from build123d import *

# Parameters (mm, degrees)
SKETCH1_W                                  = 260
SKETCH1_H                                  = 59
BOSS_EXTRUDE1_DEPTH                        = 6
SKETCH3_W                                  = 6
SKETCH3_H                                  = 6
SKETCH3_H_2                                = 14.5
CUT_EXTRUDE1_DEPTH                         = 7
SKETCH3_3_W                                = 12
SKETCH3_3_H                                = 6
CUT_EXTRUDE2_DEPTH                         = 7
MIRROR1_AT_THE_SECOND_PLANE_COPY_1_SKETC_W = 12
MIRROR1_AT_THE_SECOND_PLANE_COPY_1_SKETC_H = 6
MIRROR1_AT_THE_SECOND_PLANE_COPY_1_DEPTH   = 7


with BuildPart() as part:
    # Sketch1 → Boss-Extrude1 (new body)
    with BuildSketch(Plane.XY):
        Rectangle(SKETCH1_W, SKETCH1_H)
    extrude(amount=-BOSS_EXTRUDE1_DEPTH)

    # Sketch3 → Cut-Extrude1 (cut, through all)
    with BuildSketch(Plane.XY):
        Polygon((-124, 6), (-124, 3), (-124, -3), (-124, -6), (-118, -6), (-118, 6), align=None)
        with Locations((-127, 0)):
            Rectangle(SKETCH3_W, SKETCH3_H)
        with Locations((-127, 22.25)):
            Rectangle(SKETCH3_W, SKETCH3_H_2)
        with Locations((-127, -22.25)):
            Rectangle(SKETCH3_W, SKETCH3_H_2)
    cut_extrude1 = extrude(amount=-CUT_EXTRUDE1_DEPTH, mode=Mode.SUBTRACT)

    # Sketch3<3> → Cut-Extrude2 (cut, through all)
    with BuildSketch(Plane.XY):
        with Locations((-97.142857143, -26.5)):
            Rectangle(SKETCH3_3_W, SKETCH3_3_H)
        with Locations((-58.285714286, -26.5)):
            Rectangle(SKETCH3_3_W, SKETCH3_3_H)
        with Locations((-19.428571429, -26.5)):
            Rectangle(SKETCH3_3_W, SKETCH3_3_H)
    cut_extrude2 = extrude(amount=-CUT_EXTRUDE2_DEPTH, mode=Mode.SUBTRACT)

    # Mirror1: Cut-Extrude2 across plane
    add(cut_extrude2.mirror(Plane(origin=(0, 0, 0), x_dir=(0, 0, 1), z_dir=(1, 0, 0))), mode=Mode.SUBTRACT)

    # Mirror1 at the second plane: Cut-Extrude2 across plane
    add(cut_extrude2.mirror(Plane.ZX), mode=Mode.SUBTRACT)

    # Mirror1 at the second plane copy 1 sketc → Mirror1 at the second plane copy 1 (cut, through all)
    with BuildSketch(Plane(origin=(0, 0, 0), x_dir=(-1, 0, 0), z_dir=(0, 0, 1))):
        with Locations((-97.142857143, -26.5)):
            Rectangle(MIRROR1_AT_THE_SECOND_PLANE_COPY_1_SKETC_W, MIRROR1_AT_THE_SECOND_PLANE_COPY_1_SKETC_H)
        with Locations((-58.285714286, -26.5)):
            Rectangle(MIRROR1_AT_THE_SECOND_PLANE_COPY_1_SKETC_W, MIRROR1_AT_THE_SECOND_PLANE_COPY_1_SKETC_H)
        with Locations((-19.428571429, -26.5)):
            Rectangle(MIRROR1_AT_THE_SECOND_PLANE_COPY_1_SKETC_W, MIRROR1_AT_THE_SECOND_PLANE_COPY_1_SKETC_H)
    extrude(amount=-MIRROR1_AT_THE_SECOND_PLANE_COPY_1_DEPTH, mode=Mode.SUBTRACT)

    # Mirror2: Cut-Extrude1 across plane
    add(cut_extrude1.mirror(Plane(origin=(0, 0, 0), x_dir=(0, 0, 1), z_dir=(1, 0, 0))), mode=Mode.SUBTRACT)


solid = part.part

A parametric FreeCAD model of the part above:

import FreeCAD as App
import Part
import Sketcher
from FreeCAD import Vector
Q = App.Units.Quantity


def add_polygon(sketch, points):
    """Adds a closed chain of lines whose ends are joined by coincident constraints."""
    first, n = sketch.GeometryCount, len(points)
    for a, b in zip(points, points[1:] + points[:1]):
        sketch.addGeometry(Part.LineSegment(App.Vector(*a, 0), App.Vector(*b, 0)), False)
    for i in range(n):
        sketch.addConstraint(Sketcher.Constraint("Coincident", first + i, 2, first + (i + 1) % n, 1))

doc = App.newDocument("Part")
body = doc.addObject("PartDesign::Body", "Body")

# Sketch on XY plane
sketch1 = body.newObject("Sketcher::SketchObject", "Sketch")
sketch1.AttachmentSupport = (doc.getObject("XY_Plane"), [""])
sketch1.MapMode = "FlatFace"
add_polygon(sketch1, [(-130, 29.5), (-130, -29.5), (130, -29.5), (130, 29.5)])  # lines 0-3
sketch1.addConstraint(Sketcher.Constraint("Vertical", 0))
sketch1.addConstraint(Sketcher.Constraint("Horizontal", 1))
sketch1.addConstraint(Sketcher.Constraint("Vertical", 2))
sketch1.addConstraint(Sketcher.Constraint("Horizontal", 3))
sketch1.addConstraint(Sketcher.Constraint("Symmetric", 0, 2, 2, 2, -1, 1))
sketch1.addConstraint(Sketcher.Constraint("DistanceX", 1, 1, 1, 2, Q("260 mm")))
sketch1.addConstraint(Sketcher.Constraint("DistanceY", 0, 2, 0, 1, Q("59 mm")))
pad1 = body.newObject("PartDesign::Pad", "Pad")
pad1.Profile = sketch1
pad1.Length = 6
pad1.Reversed = True

# Sketch on XY plane
sketch2 = body.newObject("Sketcher::SketchObject", "Sketch001")
sketch2.AttachmentSupport = (doc.getObject("XY_Plane"), [""])
sketch2.MapMode = "FlatFace"
add_polygon(sketch2, [(-124, 6), (-124, 3), (-130, 3), (-130, -3), (-124, -3), (-124, -6), (-118, -6), (-118, 6)])  # lines 0-7
add_polygon(sketch2, [(-130, 29.5), (-130, 15), (-124, 15), (-124, 29.5)])  # lines 8-11
add_polygon(sketch2, [(-130, -15), (-130, -29.5), (-124, -29.5), (-124, -15)])  # lines 12-15
sketch2.addConstraint(Sketcher.Constraint("Vertical", 0))
sketch2.addConstraint(Sketcher.Constraint("Horizontal", 1))
sketch2.addConstraint(Sketcher.Constraint("Vertical", 2))
sketch2.addConstraint(Sketcher.Constraint("Horizontal", 3))
sketch2.addConstraint(Sketcher.Constraint("Vertical", 4))
sketch2.addConstraint(Sketcher.Constraint("Horizontal", 5))
sketch2.addConstraint(Sketcher.Constraint("Vertical", 6))
sketch2.addConstraint(Sketcher.Constraint("Horizontal", 7))
sketch2.addConstraint(Sketcher.Constraint("Vertical", 8))
sketch2.addConstraint(Sketcher.Constraint("Horizontal", 9))
sketch2.addConstraint(Sketcher.Constraint("Vertical", 10))
sketch2.addConstraint(Sketcher.Constraint("Horizontal", 11))
sketch2.addConstraint(Sketcher.Constraint("Vertical", 12))
sketch2.addConstraint(Sketcher.Constraint("Horizontal", 13))
sketch2.addConstraint(Sketcher.Constraint("Vertical", 14))
sketch2.addConstraint(Sketcher.Constraint("Horizontal", 15))
sketch2.addConstraint(Sketcher.Constraint("Symmetric", 0, 2, 3, 2, -1))
sketch2.addConstraint(Sketcher.Constraint("Symmetric", 11, 2, 12, 2, -1))
sketch2.addConstraint(Sketcher.Constraint("Symmetric", 9, 2, 14, 2, -1))
sketch2.addConstraint(Sketcher.Constraint("Vertical", 2, 2, 8, 2))
sketch2.addConstraint(Sketcher.Constraint("Vertical", 7, 2, 9, 2))
sketch2.addConstraint(Sketcher.Constraint("Equal", 3, 5))
sketch2.addConstraint(Sketcher.Constraint("Equal", 15, 2))
sketch2.addConstraint(Sketcher.Constraint("Equal", 0, 4))
sketch2.addConstraint(Sketcher.Constraint("DistanceX", 1, 2, 1, 1, Q("6 mm")))
sketch2.addConstraint(Sketcher.Constraint("DistanceY", 0, 2, 0, 1, Q("3 mm")))
sketch2.addConstraint(Sketcher.Constraint("DistanceY", 8, 2, 8, 1, Q("14.5 mm")))
sketch2.addConstraint(Sketcher.Constraint("DistanceX", 0, 2, -1, 1, Q("124 mm")))
sketch2.addConstraint(Sketcher.Constraint("DistanceY", -1, 1, 8, 2, Q("15 mm")))
pocket1 = body.newObject("PartDesign::Pocket", "Pocket")
pocket1.Profile = sketch2
pocket1.Type = "ThroughAll"

# Sketch on XY plane
sketch3 = body.newObject("Sketcher::SketchObject", "Sketch002")
sketch3.AttachmentSupport = (doc.getObject("XY_Plane"), [""])
sketch3.MapMode = "FlatFace"
add_polygon(sketch3, [(-103.142857, -23.5), (-103.142857, -29.5), (-91.142857, -29.5), (-91.142857, -23.5)])  # lines 0-3
add_polygon(sketch3, [(-64.285714, -23.5), (-64.285714, -29.5), (-52.285714, -29.5), (-52.285714, -23.5)])  # lines 4-7
add_polygon(sketch3, [(-25.428571, -23.5), (-25.428571, -29.5), (-13.428571, -29.5), (-13.428571, -23.5)])  # lines 8-11
sketch3.addConstraint(Sketcher.Constraint("Vertical", 0))
sketch3.addConstraint(Sketcher.Constraint("Horizontal", 1))
sketch3.addConstraint(Sketcher.Constraint("Vertical", 2))
sketch3.addConstraint(Sketcher.Constraint("Horizontal", 3))
sketch3.addConstraint(Sketcher.Constraint("Vertical", 4))
sketch3.addConstraint(Sketcher.Constraint("Horizontal", 5))
sketch3.addConstraint(Sketcher.Constraint("Vertical", 6))
sketch3.addConstraint(Sketcher.Constraint("Horizontal", 7))
sketch3.addConstraint(Sketcher.Constraint("Vertical", 8))
sketch3.addConstraint(Sketcher.Constraint("Horizontal", 9))
sketch3.addConstraint(Sketcher.Constraint("Vertical", 10))
sketch3.addConstraint(Sketcher.Constraint("Horizontal", 11))
sketch3.addConstraint(Sketcher.Constraint("Horizontal", 1, 2, 4, 2))
sketch3.addConstraint(Sketcher.Constraint("Horizontal", 3, 2, 6, 2))
sketch3.addConstraint(Sketcher.Constraint("Horizontal", 5, 2, 8, 2))
sketch3.addConstraint(Sketcher.Constraint("Horizontal", 7, 2, 10, 2))
sketch3.addConstraint(Sketcher.Constraint("Equal", 3, 5))
sketch3.addConstraint(Sketcher.Constraint("Equal", 7, 9))
sketch3.addConstraint(Sketcher.Constraint("DistanceX", 1, 1, 1, 2, Q("12 mm")))
sketch3.addConstraint(Sketcher.Constraint("DistanceY", 0, 2, 0, 1, Q("6 mm")))
sketch3.addConstraint(Sketcher.Constraint("DistanceY", 0, 2, -1, 1, Q("29.5 mm")))
sketch3.addConstraint(Sketcher.Constraint("DistanceX", 8, 2, -1, 1, Q("25.428571 mm")))
sketch3.addConstraint(Sketcher.Constraint("DistanceX", 0, 2, -1, 1, Q("103.142857 mm")))
sketch3.addConstraint(Sketcher.Constraint("DistanceX", 4, 2, -1, 1, Q("64.285714 mm")))
pocket2 = body.newObject("PartDesign::Pocket", "Pocket001")
pocket2.Profile = sketch3
pocket2.Type = "ThroughAll"
doc.recompute()

mirrored = body.newObject("PartDesign::Mirrored", "Mirrored")
mirrored.Originals = [pocket2]
mirrored.MirrorPlane = (doc.getObject("YZ_Plane"), [""])
body.Tip = mirrored
doc.recompute()

mirrored2 = body.newObject("PartDesign::Mirrored", "Mirrored001")
mirrored2.Originals = [pocket2]
mirrored2.MirrorPlane = (doc.getObject("XZ_Plane"), [""])
body.Tip = mirrored2

# Sketch on XY plane
sketch4 = body.newObject("Sketcher::SketchObject", "Sketch003")
sketch4.AttachmentSupport = (doc.getObject("XY_Plane"), [""])
sketch4.MapMode = "FlatFace"
add_polygon(sketch4, [(103.142857, 23.5), (103.142857, 29.5), (91.142857, 29.5), (91.142857, 23.5)])  # lines 0-3
add_polygon(sketch4, [(64.285714, 23.5), (64.285714, 29.5), (52.285714, 29.5), (52.285714, 23.5)])  # lines 4-7
add_polygon(sketch4, [(25.428571, 23.5), (25.428571, 29.5), (13.428571, 29.5), (13.428571, 23.5)])  # lines 8-11
sketch4.addConstraint(Sketcher.Constraint("Vertical", 0))
sketch4.addConstraint(Sketcher.Constraint("Horizontal", 1))
sketch4.addConstraint(Sketcher.Constraint("Vertical", 2))
sketch4.addConstraint(Sketcher.Constraint("Horizontal", 3))
sketch4.addConstraint(Sketcher.Constraint("Vertical", 4))
sketch4.addConstraint(Sketcher.Constraint("Horizontal", 5))
sketch4.addConstraint(Sketcher.Constraint("Vertical", 6))
sketch4.addConstraint(Sketcher.Constraint("Horizontal", 7))
sketch4.addConstraint(Sketcher.Constraint("Vertical", 8))
sketch4.addConstraint(Sketcher.Constraint("Horizontal", 9))
sketch4.addConstraint(Sketcher.Constraint("Vertical", 10))
sketch4.addConstraint(Sketcher.Constraint("Horizontal", 11))
sketch4.addConstraint(Sketcher.Constraint("Horizontal", 1, 2, 4, 2))
sketch4.addConstraint(Sketcher.Constraint("Horizontal", 3, 2, 6, 2))
sketch4.addConstraint(Sketcher.Constraint("Horizontal", 5, 2, 8, 2))
sketch4.addConstraint(Sketcher.Constraint("Horizontal", 7, 2, 10, 2))
sketch4.addConstraint(Sketcher.Constraint("Equal", 3, 5))
sketch4.addConstraint(Sketcher.Constraint("Equal", 7, 9))
sketch4.addConstraint(Sketcher.Constraint("DistanceX", 1, 2, 1, 1, Q("12 mm")))
sketch4.addConstraint(Sketcher.Constraint("DistanceY", 0, 1, 0, 2, Q("6 mm")))
sketch4.addConstraint(Sketcher.Constraint("DistanceY", -1, 1, 0, 2, Q("29.5 mm")))
sketch4.addConstraint(Sketcher.Constraint("DistanceX", -1, 1, 8, 2, Q("25.428571 mm")))
sketch4.addConstraint(Sketcher.Constraint("DistanceX", -1, 1, 0, 2, Q("103.142857 mm")))
sketch4.addConstraint(Sketcher.Constraint("DistanceX", -1, 1, 4, 2, Q("64.285714 mm")))
pocket3 = body.newObject("PartDesign::Pocket", "Pocket002")
pocket3.Profile = sketch4
pocket3.Type = "ThroughAll"
doc.recompute()

mirrored3 = body.newObject("PartDesign::Mirrored", "Mirrored002")
mirrored3.Originals = [pocket1]
mirrored3.MirrorPlane = (doc.getObject("YZ_Plane"), [""])
body.Tip = mirrored3

doc.recompute()
